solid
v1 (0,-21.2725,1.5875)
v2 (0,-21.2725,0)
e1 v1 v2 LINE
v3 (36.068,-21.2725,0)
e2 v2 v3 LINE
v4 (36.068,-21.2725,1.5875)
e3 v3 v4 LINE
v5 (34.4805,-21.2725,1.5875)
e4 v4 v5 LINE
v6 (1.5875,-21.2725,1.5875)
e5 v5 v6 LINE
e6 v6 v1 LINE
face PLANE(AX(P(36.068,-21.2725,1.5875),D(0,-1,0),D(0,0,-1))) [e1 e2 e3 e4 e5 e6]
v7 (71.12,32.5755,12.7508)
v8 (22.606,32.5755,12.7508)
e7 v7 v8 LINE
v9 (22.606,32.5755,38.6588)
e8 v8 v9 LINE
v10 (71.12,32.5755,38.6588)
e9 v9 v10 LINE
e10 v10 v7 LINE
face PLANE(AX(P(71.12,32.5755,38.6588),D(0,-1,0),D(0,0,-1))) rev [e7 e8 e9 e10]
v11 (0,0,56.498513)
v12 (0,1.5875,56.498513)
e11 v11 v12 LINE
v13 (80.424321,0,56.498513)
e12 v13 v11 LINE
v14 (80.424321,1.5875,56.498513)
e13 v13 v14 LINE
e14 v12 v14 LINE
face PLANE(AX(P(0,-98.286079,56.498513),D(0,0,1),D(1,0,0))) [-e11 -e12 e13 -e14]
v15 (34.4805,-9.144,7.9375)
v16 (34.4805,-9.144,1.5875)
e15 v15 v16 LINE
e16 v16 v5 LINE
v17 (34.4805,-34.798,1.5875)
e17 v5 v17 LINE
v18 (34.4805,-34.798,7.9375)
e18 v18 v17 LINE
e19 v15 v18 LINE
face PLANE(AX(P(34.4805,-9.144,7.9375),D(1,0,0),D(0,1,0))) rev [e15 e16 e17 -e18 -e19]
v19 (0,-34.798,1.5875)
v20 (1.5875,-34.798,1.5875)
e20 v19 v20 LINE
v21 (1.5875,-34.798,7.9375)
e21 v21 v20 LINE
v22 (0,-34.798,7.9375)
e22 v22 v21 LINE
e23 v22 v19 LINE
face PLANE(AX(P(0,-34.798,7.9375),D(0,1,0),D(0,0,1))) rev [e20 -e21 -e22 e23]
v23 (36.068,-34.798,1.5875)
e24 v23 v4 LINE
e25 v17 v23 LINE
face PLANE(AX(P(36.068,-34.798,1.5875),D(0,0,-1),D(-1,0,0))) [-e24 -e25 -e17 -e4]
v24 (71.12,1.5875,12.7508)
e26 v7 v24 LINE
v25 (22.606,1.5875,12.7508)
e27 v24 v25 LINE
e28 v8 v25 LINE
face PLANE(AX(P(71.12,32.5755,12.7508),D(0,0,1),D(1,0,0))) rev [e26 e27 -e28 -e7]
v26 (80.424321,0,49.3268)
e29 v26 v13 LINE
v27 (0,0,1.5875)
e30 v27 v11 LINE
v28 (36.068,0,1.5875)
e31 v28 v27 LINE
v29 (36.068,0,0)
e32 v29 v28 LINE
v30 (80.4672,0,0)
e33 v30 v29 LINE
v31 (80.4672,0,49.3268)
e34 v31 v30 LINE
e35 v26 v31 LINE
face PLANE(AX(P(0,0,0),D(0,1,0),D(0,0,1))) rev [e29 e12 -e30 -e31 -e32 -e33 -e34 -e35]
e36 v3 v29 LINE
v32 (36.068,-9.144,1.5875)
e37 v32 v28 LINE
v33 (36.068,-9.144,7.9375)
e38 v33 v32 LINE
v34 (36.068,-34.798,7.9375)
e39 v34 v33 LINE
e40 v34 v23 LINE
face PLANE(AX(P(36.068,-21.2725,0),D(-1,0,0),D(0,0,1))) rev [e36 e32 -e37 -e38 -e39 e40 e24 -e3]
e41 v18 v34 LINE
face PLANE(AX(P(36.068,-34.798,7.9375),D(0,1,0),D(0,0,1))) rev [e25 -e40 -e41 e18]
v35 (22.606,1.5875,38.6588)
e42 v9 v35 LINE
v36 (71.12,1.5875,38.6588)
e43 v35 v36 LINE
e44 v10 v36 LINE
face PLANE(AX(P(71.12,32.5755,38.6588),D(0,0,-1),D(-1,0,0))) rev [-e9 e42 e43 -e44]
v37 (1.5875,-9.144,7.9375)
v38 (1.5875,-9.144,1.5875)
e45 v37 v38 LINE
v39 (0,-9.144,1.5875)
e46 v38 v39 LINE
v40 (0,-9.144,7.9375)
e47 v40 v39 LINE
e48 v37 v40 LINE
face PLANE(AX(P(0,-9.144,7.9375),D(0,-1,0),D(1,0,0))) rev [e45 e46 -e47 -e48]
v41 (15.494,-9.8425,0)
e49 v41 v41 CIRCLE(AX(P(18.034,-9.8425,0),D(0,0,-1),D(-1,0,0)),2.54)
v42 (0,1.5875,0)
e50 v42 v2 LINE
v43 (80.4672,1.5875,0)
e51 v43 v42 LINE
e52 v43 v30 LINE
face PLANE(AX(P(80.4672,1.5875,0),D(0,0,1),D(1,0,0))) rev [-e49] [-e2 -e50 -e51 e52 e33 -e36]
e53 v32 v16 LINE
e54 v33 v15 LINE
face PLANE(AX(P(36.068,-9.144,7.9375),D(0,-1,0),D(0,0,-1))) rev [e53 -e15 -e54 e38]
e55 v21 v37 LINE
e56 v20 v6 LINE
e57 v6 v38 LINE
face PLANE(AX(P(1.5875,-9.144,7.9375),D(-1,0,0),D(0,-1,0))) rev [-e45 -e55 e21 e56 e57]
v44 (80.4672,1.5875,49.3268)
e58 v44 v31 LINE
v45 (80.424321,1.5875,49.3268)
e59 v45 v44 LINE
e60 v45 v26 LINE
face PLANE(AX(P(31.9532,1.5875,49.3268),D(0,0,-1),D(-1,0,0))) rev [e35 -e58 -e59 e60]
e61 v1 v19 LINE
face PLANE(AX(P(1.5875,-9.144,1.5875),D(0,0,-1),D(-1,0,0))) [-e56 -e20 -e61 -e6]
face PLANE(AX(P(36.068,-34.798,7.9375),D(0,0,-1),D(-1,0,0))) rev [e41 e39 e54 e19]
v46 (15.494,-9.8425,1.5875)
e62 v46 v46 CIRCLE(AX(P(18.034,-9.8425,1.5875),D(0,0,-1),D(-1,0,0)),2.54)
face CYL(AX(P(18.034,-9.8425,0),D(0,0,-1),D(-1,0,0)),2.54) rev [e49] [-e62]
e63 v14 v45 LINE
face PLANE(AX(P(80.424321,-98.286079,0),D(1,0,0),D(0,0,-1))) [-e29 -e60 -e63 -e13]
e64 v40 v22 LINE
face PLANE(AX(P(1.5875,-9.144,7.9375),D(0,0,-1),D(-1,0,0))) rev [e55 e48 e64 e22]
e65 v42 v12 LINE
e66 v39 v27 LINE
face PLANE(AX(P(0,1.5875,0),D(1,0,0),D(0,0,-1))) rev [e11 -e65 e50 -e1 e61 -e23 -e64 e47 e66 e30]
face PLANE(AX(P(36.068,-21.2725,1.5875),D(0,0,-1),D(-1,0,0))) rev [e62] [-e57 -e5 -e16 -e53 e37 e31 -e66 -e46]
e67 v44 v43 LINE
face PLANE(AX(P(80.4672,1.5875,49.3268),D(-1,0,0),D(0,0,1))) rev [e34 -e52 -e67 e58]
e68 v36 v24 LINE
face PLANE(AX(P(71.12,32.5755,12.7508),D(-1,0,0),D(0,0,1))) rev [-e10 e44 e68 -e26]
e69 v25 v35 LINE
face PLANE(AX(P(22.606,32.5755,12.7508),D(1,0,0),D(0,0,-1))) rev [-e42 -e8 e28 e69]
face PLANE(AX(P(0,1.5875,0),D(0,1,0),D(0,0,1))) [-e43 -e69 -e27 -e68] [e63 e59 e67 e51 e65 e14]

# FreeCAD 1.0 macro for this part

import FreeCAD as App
import Part
import Sketcher
Q = App.Units.Quantity

doc = App.newDocument("Part")
body = doc.addObject("PartDesign::Body", "Body")

sketch1 = body.newObject("Sketcher::SketchObject", "Sketch")
sketch1.AttachmentSupport = (doc.getObject("XZ_Plane"), [""])
sketch1.MapMode = "FlatFace"
sketch1.addGeometry(Part.LineSegment(App.Vector(0, 0, 0), App.Vector(0, 25, 0)), False)
sketch1.addGeometry(Part.LineSegment(App.Vector(0, 25, 0), App.Vector(13, 56, 0)), False)
sketch1.addGeometry(Part.LineSegment(App.Vector(13, 56, 0), App.Vector(32, 56, 0)), False)
sketch1.addGeometry(Part.LineSegment(App.Vector(32, 56, 0), App.Vector(32, 49, 0)), False)
sketch1.addGeometry(Part.LineSegment(App.Vector(32, 49, 0), App.Vector(80, 49, 0)), False)
sketch1.addGeometry(Part.LineSegment(App.Vector(80, 49, 0), App.Vector(80, 0, 0)), False)
sketch1.addGeometry(Part.LineSegment(App.Vector(80, 0, 0), App.Vector(0, 0, 0)), False)
sketch1.addConstraint(Sketcher.Constraint("Coincident", 0, 2, 1, 1))
sketch1.addConstraint(Sketcher.Constraint("Coincident", 1, 2, 2, 1))
sketch1.addConstraint(Sketcher.Constraint("Coincident", 2, 2, 3, 1))
sketch1.addConstraint(Sketcher.Constraint("Coincident", 3, 2, 4, 1))
sketch1.addConstraint(Sketcher.Constraint("Coincident", 4, 2, 5, 1))
sketch1.addConstraint(Sketcher.Constraint("Coincident", 5, 2, 6, 1))
sketch1.addConstraint(Sketcher.Constraint("Coincident", 6, 2, 0, 1))
sketch1.addConstraint(Sketcher.Constraint("Vertical", 0))
sketch1.addConstraint(Sketcher.Constraint("Horizontal", 2))
sketch1.addConstraint(Sketcher.Constraint("Vertical", 3))
sketch1.addConstraint(Sketcher.Constraint("Horizontal", 4))
sketch1.addConstraint(Sketcher.Constraint("Vertical", 5))
sketch1.addConstraint(Sketcher.Constraint("Horizontal", 6))
sketch1.addConstraint(Sketcher.Constraint("Coincident", 6, 2, -1, 1))
sketch1.addConstraint(Sketcher.Constraint("DistanceY", 0, 1, 0, 2, Q("1 in")))
sketch1.addConstraint(Sketcher.Constraint("DistanceX", 4, 1, 4, 2, Q("1.91 in")))
sketch1.addConstraint(Sketcher.Constraint("DistanceX", 2, 1, 2, 2, Q("0.736 in")))
sketch1.addConstraint(Sketcher.Constraint("DistanceX", 6, 2, 6, 1, Q("3.168 in")))
sketch1.addConstraint(Sketcher.Constraint("DistanceY", 3, 2, 3, 1, Q("0.278 in")))
sketch1.addConstraint(Sketcher.Constraint("DistanceY", 5, 2, 5, 1, Q("1.942 in")))
pad1 = body.newObject("PartDesign::Pad", "Pad")
pad1.Profile = sketch1
pad1.Length = Q("0.0625 in")
pad1.Reversed = True

sketch2 = body.newObject("Sketcher::SketchObject", "Sketch001")
sketch2.AttachmentSupport = (doc.getObject("XZ_Plane"), [""])
sketch2.MapMode = "FlatFace"
sketch2.addGeometry(Part.LineSegment(App.Vector(0, 1.6, 0), App.Vector(0, 0, 0)), False)
sketch2.addGeometry(Part.LineSegment(App.Vector(0, 0, 0), App.Vector(36.1, 0, 0)), False)
sketch2.addGeometry(Part.LineSegment(App.Vector(36.1, 0, 0), App.Vector(36.1, 1.6, 0)), False)
sketch2.addGeometry(Part.LineSegment(App.Vector(36.1, 1.6, 0), App.Vector(0, 1.6, 0)), False)
sketch2.addConstraint(Sketcher.Constraint("Coincident", 0, 2, 1, 1))
sketch2.addConstraint(Sketcher.Constraint("Coincident", 1, 2, 2, 1))
sketch2.addConstraint(Sketcher.Constraint("Coincident", 2, 2, 3, 1))
sketch2.addConstraint(Sketcher.Constraint("Coincident", 3, 2, 0, 1))
sketch2.addConstraint(Sketcher.Constraint("Vertical", 0))
sketch2.addConstraint(Sketcher.Constraint("Horizontal", 1))
sketch2.addConstraint(Sketcher.Constraint("Vertical", 2))
sketch2.addConstraint(Sketcher.Constraint("Horizontal", 3))
sketch2.addConstraint(Sketcher.Constraint("Coincident", 0, 2, -1, 1))
sketch2.addConstraint(Sketcher.Constraint("DistanceX", 1, 1, 1, 2, Q("1.42 in")))
sketch2.addConstraint(Sketcher.Constraint("DistanceY", 0, 2, 0, 1, Q("0.0625 in")))
pad2 = body.newObject("PartDesign::Pad", "Pad001")
pad2.Profile = sketch2
pad2.Length = Q("0.8375 in")

sketch3 = body.newObject("Sketcher::SketchObject", "Sketch002")
sketch3.AttachmentSupport = (doc.getObject("XY_Plane"), [""])
sketch3.MapMode = "FlatFace"
sketch3.AttachmentOffset = App.Placement(App.Vector(0, 0, 0.0625 * 25.4), App.Rotation())
sketch3.addGeometry(Part.LineSegment(App.Vector(34.5, -9.1, 0), App.Vector(34.5, -34.8, 0)), False)
sketch3.addGeometry(Part.LineSegment(App.Vector(34.5, -34.8, 0), App.Vector(36.1, -34.8, 0)), False)
sketch3.addGeometry(Part.LineSegment(App.Vector(36.1, -34.8, 0), App.Vector(36.1, -9.1, 0)), False)
sketch3.addGeometry(Part.LineSegment(App.Vector(36.1, -9.1, 0), App.Vector(34.5, -9.1, 0)), False)
sketch3.addGeometry(Part.LineSegment(App.Vector(0, -9.1, 0), App.Vector(0, -34.8, 0)), False)
sketch3.addGeometry(Part.LineSegment(App.Vector(0, -34.8, 0), App.Vector(1.6, -34.8, 0)), False)
sketch3.addGeometry(Part.LineSegment(App.Vector(1.6, -34.8, 0), App.Vector(1.6, -9.1, 0)), False)
sketch3.addGeometry(Part.LineSegment(App.Vector(1.6, -9.1, 0), App.Vector(0, -9.1, 0)), False)
sketch3.addConstraint(Sketcher.Constraint("Coincident", 0, 2, 1, 1))
sketch3.addConstraint(Sketcher.Constraint("Coincident", 1, 2, 2, 1))
sketch3.addConstraint(Sketcher.Constraint("Coincident", 2, 2, 3, 1))
sketch3.addConstraint(Sketcher.Constraint("Coincident", 3, 2, 0, 1))
sketch3.addConstraint(Sketcher.Constraint("Coincident", 4, 2, 5, 1))
sketch3.addConstraint(Sketcher.Constraint("Coincident", 5, 2, 6, 1))
sketch3.addConstraint(Sketcher.Constraint("Coincident", 6, 2, 7, 1))
sketch3.addConstraint(Sketcher.Constraint("Coincident", 7, 2, 4, 1))
sketch3.addConstraint(Sketcher.Constraint("Vertical", 0))
sketch3.addConstraint(Sketcher.Constraint("Horizontal", 1))
sketch3.addConstraint(Sketcher.Constraint("Vertical", 2))
sketch3.addConstraint(Sketcher.Constraint("Horizontal", 3))
sketch3.addConstraint(Sketcher.Constraint("Vertical", 4))
sketch3.addConstraint(Sketcher.Constraint("Horizontal", 5))
sketch3.addConstraint(Sketcher.Constraint("Vertical", 6))
sketch3.addConstraint(Sketcher.Constraint("Horizontal", 7))
sketch3.addConstraint(Sketcher.Constraint("PointOnObject", 4, 2, -2))
sketch3.addConstraint(Sketcher.Constraint("Horizontal", 1, 2, 4, 2))
sketch3.addConstraint(Sketcher.Constraint("Horizontal", 3, 2, 6, 2))
sketch3.addConstraint(Sketcher.Constraint("Equal", 3, 5))
sketch3.addConstraint(Sketcher.Constraint("DistanceY", 0, 2, 0, 1, Q("1.01 in")))
sketch3.addConstraint(Sketcher.Constraint("DistanceX", 1, 1, 1, 2, Q("0.0625 in")))
sketch3.addConstraint(Sketcher.Constraint("DistanceY", 0, 2, -1, 1, Q("1.37 in")))
sketch3.addConstraint(Sketcher.Constraint("DistanceX", -1, 1, 1, 2, Q("1.42 in")))
pad3 = body.newObject("PartDesign::Pad", "Pad002")
pad3.Profile = sketch3
pad3.Length = Q("0.25 in")

sketch4 = body.newObject("Sketcher::SketchObject", "Sketch003")
sketch4.AttachmentSupport = (doc.getObject("XY_Plane"), [""])
sketch4.MapMode = "FlatFace"
sketch4.addGeometry(Part.Circle(App.Vector(18, -9.8, 0), App.Vector(0, 0, 1), 2.5), False)
sketch4.addConstraint(Sketcher.Constraint("Diameter", 0, Q("0.2 in")))
sketch4.addConstraint(Sketcher.Constraint("DistanceX", -1, 1, 0, 3, Q("0.71 in")))
sketch4.addConstraint(Sketcher.Constraint("DistanceY", 0, 3, -1, 1, Q("0.3875 in")))
doc.recompute()
hole = body.newObject("PartDesign::Hole", "Hole")
hole.Profile = sketch4
hole.ThreadType = "None"
hole.Diameter = Q("0.2 in")
hole.DepthType = "Dimension"
hole.Depth = Q("0.625 in")
hole.DrillPoint = "Flat"
hole.Reversed = True

sketch5 = body.newObject("Sketcher::SketchObject", "Sketch004")
sketch5.AttachmentSupport = (doc.getObject("XZ_Plane"), [""])
sketch5.MapMode = "FlatFace"
sketch5.AttachmentOffset = App.Placement(App.Vector(0, 0, -0.0625 * 25.4), App.Rotation())
sketch5.addGeometry(Part.LineSegment(App.Vector(23, 13, 0), App.Vector(23, 39, 0)), False)
sketch5.addGeometry(Part.LineSegment(App.Vector(23, 39, 0), App.Vector(71, 39, 0)), False)
sketch5.addGeometry(Part.LineSegment(App.Vector(71, 39, 0), App.Vector(71, 13, 0)), False)
sketch5.addGeometry(Part.LineSegment(App.Vector(71, 13, 0), App.Vector(23, 13, 0)), False)
sketch5.addConstraint(Sketcher.Constraint("Coincident", 0, 2, 1, 1))
sketch5.addConstraint(Sketcher.Constraint("Coincident", 1, 2, 2, 1))
sketch5.addConstraint(Sketcher.Constraint("Coincident", 2, 2, 3, 1))
sketch5.addConstraint(Sketcher.Constraint("Coincident", 3, 2, 0, 1))
sketch5.addConstraint(Sketcher.Constraint("Vertical", 0))
sketch5.addConstraint(Sketcher.Constraint("Horizontal", 1))
sketch5.addConstraint(Sketcher.Constraint("Vertical", 2))
sketch5.addConstraint(Sketcher.Constraint("Horizontal", 3))
sketch5.addConstraint(Sketcher.Constraint("DistanceX", 1, 1, 1, 2, Q("1.91 in")))
sketch5.addConstraint(Sketcher.Constraint("DistanceY", 0, 1, 0, 2, Q("1.02 in")))
sketch5.addConstraint(Sketcher.Constraint("DistanceX", -1, 1, 1, 2, Q("2.8 in")))
sketch5.addConstraint(Sketcher.Constraint("DistanceY", -1, 1, 0, 2, Q("1.522 in")))
pad4 = body.newObject("PartDesign::Pad", "Pad003")
pad4.Profile = sketch5
pad4.Length = Q("1.22 in")
pad4.Reversed = True

sketch6 = body.newObject("Sketcher::SketchObject", "Sketch005")
sketch6.AttachmentSupport = (doc.getObject("XZ_Plane"), [""])
sketch6.MapMode = "FlatFace"
sketch6.AttachmentOffset = App.Placement(App.Vector(0, 0, -0.0625 * 25.4), App.Rotation())
sketch6.addGeometry(Part.LineSegment(App.Vector(0, 0, 0), App.Vector(0, 56, 0)), False)
sketch6.addGeometry(Part.LineSegment(App.Vector(0, 56, 0), App.Vector(80, 56, 0)), False)
sketch6.addGeometry(Part.LineSegment(App.Vector(80, 56, 0), App.Vector(80, 0, 0)), False)
sketch6.addGeometry(Part.LineSegment(App.Vector(80, 0, 0), App.Vector(0, 0, 0)), False)
sketch6.addConstraint(Sketcher.Constraint("Coincident", 0, 2, 1, 1))
sketch6.addConstraint(Sketcher.Constraint("Coincident", 1, 2, 2, 1))
sketch6.addConstraint(Sketcher.Constraint("Coincident", 2, 2, 3, 1))
sketch6.addConstraint(Sketcher.Constraint("Coincident", 3, 2, 0, 1))
sketch6.addConstraint(Sketcher.Constraint("Vertical", 0))
sketch6.addConstraint(Sketcher.Constraint("Horizontal", 1))
sketch6.addConstraint(Sketcher.Constraint("Vertical", 2))
sketch6.addConstraint(Sketcher.Constraint("Horizontal", 3))
sketch6.addConstraint(Sketcher.Constraint("Coincident", 3, 2, -1, 1))
sketch6.addConstraint(Sketcher.Constraint("DistanceX", 1, 1, 1, 2, 80.424321))
sketch6.addConstraint(Sketcher.Constraint("DistanceY", 0, 1, 0, 2, 56.498513))
pad5 = body.newObject("PartDesign::Pad", "Pad004")
pad5.Profile = sketch6
pad5.Length = Q("0.0625 in")

doc.recompute()
